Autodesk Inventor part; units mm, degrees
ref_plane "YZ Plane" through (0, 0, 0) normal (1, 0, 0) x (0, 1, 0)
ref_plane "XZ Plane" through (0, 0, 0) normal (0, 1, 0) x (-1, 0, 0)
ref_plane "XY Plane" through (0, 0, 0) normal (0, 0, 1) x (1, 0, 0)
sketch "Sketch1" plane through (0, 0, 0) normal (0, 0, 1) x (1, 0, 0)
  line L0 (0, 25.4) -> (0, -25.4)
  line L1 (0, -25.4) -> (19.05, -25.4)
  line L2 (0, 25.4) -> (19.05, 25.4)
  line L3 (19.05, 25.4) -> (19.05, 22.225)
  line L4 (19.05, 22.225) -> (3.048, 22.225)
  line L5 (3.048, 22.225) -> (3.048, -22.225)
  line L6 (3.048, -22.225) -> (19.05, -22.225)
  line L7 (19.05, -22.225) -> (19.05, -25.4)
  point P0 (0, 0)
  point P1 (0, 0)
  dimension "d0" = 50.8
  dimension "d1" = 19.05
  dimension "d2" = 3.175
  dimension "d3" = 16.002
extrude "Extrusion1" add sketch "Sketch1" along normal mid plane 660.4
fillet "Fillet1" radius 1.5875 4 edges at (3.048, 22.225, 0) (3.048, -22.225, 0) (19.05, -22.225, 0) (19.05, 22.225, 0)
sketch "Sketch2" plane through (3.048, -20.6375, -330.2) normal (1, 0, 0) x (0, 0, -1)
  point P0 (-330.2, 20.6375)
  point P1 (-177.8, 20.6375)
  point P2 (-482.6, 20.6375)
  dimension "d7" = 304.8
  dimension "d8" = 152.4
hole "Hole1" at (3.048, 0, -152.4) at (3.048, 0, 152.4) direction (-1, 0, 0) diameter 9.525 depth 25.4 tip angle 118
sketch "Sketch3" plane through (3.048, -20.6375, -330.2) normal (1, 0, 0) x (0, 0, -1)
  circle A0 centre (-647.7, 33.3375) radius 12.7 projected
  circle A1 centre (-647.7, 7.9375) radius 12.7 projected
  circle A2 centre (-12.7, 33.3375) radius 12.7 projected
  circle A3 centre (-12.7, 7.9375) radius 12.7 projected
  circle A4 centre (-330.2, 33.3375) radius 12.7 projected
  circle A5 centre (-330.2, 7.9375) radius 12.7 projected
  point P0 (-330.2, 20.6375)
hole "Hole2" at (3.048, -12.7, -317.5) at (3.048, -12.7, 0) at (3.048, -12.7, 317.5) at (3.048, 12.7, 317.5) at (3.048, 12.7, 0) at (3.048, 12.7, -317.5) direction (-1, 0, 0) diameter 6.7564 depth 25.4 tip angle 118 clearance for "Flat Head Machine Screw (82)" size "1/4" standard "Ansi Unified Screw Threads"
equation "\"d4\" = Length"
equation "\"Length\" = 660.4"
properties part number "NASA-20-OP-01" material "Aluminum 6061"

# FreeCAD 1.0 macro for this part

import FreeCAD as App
import Part
import Sketcher

V = App.Vector
Q = App.Units.Quantity


def edges_at(feature, points):
    """Names of the edges that pass closest to the given points."""
    edges = feature.Shape.Edges
    near = lambda p: min(range(len(edges)), key=lambda i: edges[i].distToShape(Part.Vertex(*p))[0])
    return sorted({f"Edge{near(p) + 1}" for p in points})

doc = App.newDocument("Part")
params = doc.addObject("Spreadsheet::Sheet", "Params")
for row, (alias, value) in enumerate([
    ("sketch1_height", "2 in"),
    ("sketch1_width", "0.75 in"),
    ("sketch1_width2", "0.63 in"),
    ("sketch1_height2", "0.125 in"),
    ("pad1_length", "26 in"),
    ("fillet_radius", "0.0625 in"),
    ("sketch2_diameter", "0.375 in"),
    ("hole_diameter", "0.375 in"),
    ("hole_depth", "1 in"),
    ("sketch3_diameter", "0.266 in"),
    ("hole2_diameter", "0.266 in"),
    ("hole2_depth", "1 in"),
], start=1):
    params.set(f"A{row}", alias)
    params.set(f"B{row}", "=" + value)
    params.setAlias(f"B{row}", alias)

body = doc.addObject("PartDesign::Body", "Body")

# Sketch on XY plane
sketch1 = doc.addObject("Sketcher::SketchObject", "Sketch")
body.addObject(sketch1)
sketch1.AttachmentSupport = (doc.XY_Plane, [""])
sketch1.MapMode = "FlatFace"
sketch1.addGeometry(Part.LineSegment(V(19.1, 25.4, 0), V(0, 25.4, 0)), False)
sketch1.addGeometry(Part.LineSegment(V(0, 25.4, 0), V(0, -25.4, 0)), False)
sketch1.addGeometry(Part.LineSegment(V(0, -25.4, 0), V(19.1, -25.4, 0)), False)
sketch1.addGeometry(Part.LineSegment(V(19.1, -25.4, 0), V(19.1, -22.2, 0)), False)
sketch1.addGeometry(Part.LineSegment(V(19.1, -22.2, 0), V(3, -22.2, 0)), False)
sketch1.addGeometry(Part.LineSegment(V(3, -22.2, 0), V(3, 22.2, 0)), False)
sketch1.addGeometry(Part.LineSegment(V(3, 22.2, 0), V(19.1, 22.2, 0)), False)
sketch1.addGeometry(Part.LineSegment(V(19.1, 22.2, 0), V(19.1, 25.4, 0)), False)
sketch1.addConstraint(Sketcher.Constraint("Coincident", 0, 2, 1, 1))
sketch1.addConstraint(Sketcher.Constraint("Coincident", 1, 2, 2, 1))
sketch1.addConstraint(Sketcher.Constraint("Coincident", 2, 2, 3, 1))
sketch1.addConstraint(Sketcher.Constraint("Coincident", 3, 2, 4, 1))
sketch1.addConstraint(Sketcher.Constraint("Coincident", 4, 2, 5, 1))
sketch1.addConstraint(Sketcher.Constraint("Coincident", 5, 2, 6, 1))
sketch1.addConstraint(Sketcher.Constraint("Coincident", 6, 2, 7, 1))
sketch1.addConstraint(Sketcher.Constraint("Coincident", 7, 2, 0, 1))
sketch1.addConstraint(Sketcher.Constraint("Horizontal", 0))
sketch1.addConstraint(Sketcher.Constraint("Vertical", 1))
sketch1.addConstraint(Sketcher.Constraint("Horizontal", 2))
sketch1.addConstraint(Sketcher.Constraint("Vertical", 3))
sketch1.addConstraint(Sketcher.Constraint("Horizontal", 4))
sketch1.addConstraint(Sketcher.Constraint("Vertical", 5))
sketch1.addConstraint(Sketcher.Constraint("Horizontal", 6))
sketch1.addConstraint(Sketcher.Constraint("Vertical", 7))
sketch1.addConstraint(Sketcher.Constraint("Symmetric", 0, 2, 1, 2, -1, 1))
sketch1.addConstraint(Sketcher.Constraint("Symmetric", 3, 2, 6, 2, -1))
sketch1.addConstraint(Sketcher.Constraint("DistanceY", 1, 2, 1, 1, Q("2 in")))
sketch1.addConstraint(Sketcher.Constraint("DistanceX", 0, 2, 0, 1, Q("0.75 in")))
sketch1.addConstraint(Sketcher.Constraint("DistanceX", 4, 2, 4, 1, Q("0.63 in")))
sketch1.addConstraint(Sketcher.Constraint("DistanceY", 3, 1, 3, 2, Q("0.125 in")))
sketch1.setExpression("Constraints[18]", "Params.sketch1_height")
sketch1.setExpression("Constraints[19]", "Params.sketch1_width")
sketch1.setExpression("Constraints[20]", "Params.sketch1_width2")
sketch1.setExpression("Constraints[21]", "Params.sketch1_height2")
pad1 = doc.addObject("PartDesign::Pad", "Pad")
body.addObject(pad1)
pad1.Profile = sketch1
pad1.setExpression("Length", "Params.pad1_length")
pad1.Midplane = True
doc.recompute()

fillet = doc.addObject("PartDesign::Fillet", "Fillet")
body.addObject(fillet)
fillet.Base = (pad1, edges_at(pad1, [
    (3.048, 22.225, 0),
    (3.048, -22.225, 0),
    (19.05, -22.225, 0),
    (19.05, 22.225, 0),
]))
fillet.setExpression("Radius", "Params.fillet_radius")

# Sketch on YZ plane
sketch2 = doc.addObject("Sketcher::SketchObject", "Sketch001")
body.addObject(sketch2)
sketch2.AttachmentSupport = (doc.YZ_Plane, [""])
sketch2.MapMode = "FlatFace"
sketch2.AttachmentOffset = App.Placement(V(0, 0, 0.12 * 25.4), App.Rotation())
sketch2.addGeometry(Part.Circle(V(0, -152.4, 0), V(0, 0, 1), 4.8), False)
sketch2.addGeometry(Part.Circle(V(0, 152.4, 0), V(0, 0, 1), 4.8), False)
sketch2.addConstraint(Sketcher.Constraint("Equal", 0, 1))
sketch2.addConstraint(Sketcher.Constraint("Symmetric", 0, 3, 1, 3, -1, 1))
sketch2.addConstraint(Sketcher.Constraint("PointOnObject", 0, 3, -2))
sketch2.addConstraint(Sketcher.Constraint("Diameter", 0, Q("0.375 in")))
sketch2.addConstraint(Sketcher.Constraint("DistanceY", 0, 3, -1, 1, Q("6 in")))
sketch2.setExpression("Constraints[3]", "Params.sketch2_diameter")
doc.recompute()
hole = doc.addObject("PartDesign::Hole", "Hole")
body.addObject(hole)
hole.Profile = sketch2
hole.ThreadType = "None"
hole.setExpression("Diameter", "Params.hole_diameter")
hole.DepthType = "Dimension"
hole.setExpression("Depth", "Params.hole_depth")
hole.DrillPoint = "Angled"
hole.DrillPointAngle = 118

# Sketch on YZ plane
sketch3 = doc.addObject("Sketcher::SketchObject", "Sketch002")
body.addObject(sketch3)
sketch3.AttachmentSupport = (doc.YZ_Plane, [""])
sketch3.MapMode = "FlatFace"
sketch3.AttachmentOffset = App.Placement(V(0, 0, 0.12 * 25.4), App.Rotation())
sketch3.addGeometry(Part.Circle(V(-12.7, -317.5, 0), V(0, 0, 1), 3.4), False)
sketch3.addGeometry(Part.Circle(V(-12.7, 0, 0), V(0, 0, 1), 3.4), False)
sketch3.addGeometry(Part.Circle(V(-12.7, 317.5, 0), V(0, 0, 1), 3.4), False)
sketch3.addGeometry(Part.Circle(V(12.7, 317.5, 0), V(0, 0, 1), 3.4), False)
sketch3.addGeometry(Part.Circle(V(12.7, 0, 0), V(0, 0, 1), 3.4), False)
sketch3.addGeometry(Part.Circle(V(12.7, -317.5, 0), V(0, 0, 1), 3.4), False)
sketch3.addConstraint(Sketcher.Constraint("Equal", 0, 1))
sketch3.addConstraint(Sketcher.Constraint("Equal", 1, 2))
sketch3.addConstraint(Sketcher.Constraint("Equal", 2, 3))
sketch3.addConstraint(Sketcher.Constraint("Equal", 3, 4))
sketch3.addConstraint(Sketcher.Constraint("Equal", 4, 5))
sketch3.addConstraint(Sketcher.Constraint("Symmetric", 0, 3, 3, 3, -1, 1))
sketch3.addConstraint(Sketcher.Constraint("Symmetric", 1, 3, 4, 3, -1, 1))
sketch3.addConstraint(Sketcher.Constraint("Symmetric", 2, 3, 5, 3, -1, 1))
sketch3.addConstraint(Sketcher.Constraint("Symmetric", 2, 3, 3, 3, -2))
sketch3.addConstraint(Sketcher.Constraint("PointOnObject", 1, 3, -1))
sketch3.addConstraint(Sketcher.Constraint("Vertical", 0, 3, 1, 3))
sketch3.addConstraint(Sketcher.Constraint("Diameter", 0, Q("0.266 in")))
sketch3.addConstraint(Sketcher.Constraint("DistanceY", 0, 3, 2, 3, Q("25 in")))
sketch3.addConstraint(Sketcher.Constraint("DistanceX", 2, 3, 3, 3, Q("1 in")))
sketch3.setExpression("Constraints[11]", "Params.sketch3_diameter")
doc.recompute()
hole2 = doc.addObject("PartDesign::Hole", "Hole001")
body.addObject(hole2)
hole2.Profile = sketch3
hole2.ThreadType = "None"
hole2.setExpression("Diameter", "Params.hole2_diameter")
hole2.DepthType = "Dimension"
hole2.setExpression("Depth", "Params.hole2_depth")
hole2.DrillPoint = "Angled"
hole2.DrillPointAngle = 118

doc.recompute()
